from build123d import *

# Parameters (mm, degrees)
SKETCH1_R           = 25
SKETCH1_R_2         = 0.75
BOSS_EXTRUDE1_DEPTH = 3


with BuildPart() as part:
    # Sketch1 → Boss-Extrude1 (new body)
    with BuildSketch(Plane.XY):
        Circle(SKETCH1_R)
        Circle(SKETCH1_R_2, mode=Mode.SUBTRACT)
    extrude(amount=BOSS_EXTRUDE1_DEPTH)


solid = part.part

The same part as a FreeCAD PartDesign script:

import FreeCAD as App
import Part
import Sketcher
Q = App.Units.Quantity

doc = App.newDocument("Part")
params = doc.addObject("Spreadsheet::Sheet", "Params")
for row, (alias, value) in enumerate([
    ("sketch1_diameter", "50 mm"),
    ("sketch1_diameter2", "1.5 mm"),
    ("pad1_length", "3 mm"),
], start=1):
    params.set(f"A{row}", alias)
    params.set(f"B{row}", "=" + value)
    params.setAlias(f"B{row}", alias)

body = doc.addObject("PartDesign::Body", "Body")

sketch1 = body.newObject("Sketcher::SketchObject", "Sketch")
sketch1.AttachmentSupport = (doc.getObject("XY_Plane"), [""])
sketch1.MapMode = "FlatFace"
sketch1.addGeometry([
    Part.Circle(App.Vector(0, 0, 0), App.Vector(0, 0, 1), 25),
    Part.Circle(App.Vector(0, 0, 0), App.Vector(0, 0, 1), 0.8),
], False)
sketch1.addConstraint([
    Sketcher.Constraint("Coincident", 0, 3, -1, 1),
    Sketcher.Constraint("Coincident", 1, 3, -1, 1),
    Sketcher.Constraint("Diameter", 0, Q("50 mm")),
    Sketcher.Constraint("Diameter", 1, Q("1.5 mm")),
])
sketch1.setExpression("Constraints[2]", "Params.sketch1_diameter")
sketch1.setExpression("Constraints[3]", "Params.sketch1_diameter2")
pad1 = body.newObject("PartDesign::Pad", "Pad")
pad1.Profile = sketch1
pad1.setExpression("Length", "Params.pad1_length")

doc.recompute()
